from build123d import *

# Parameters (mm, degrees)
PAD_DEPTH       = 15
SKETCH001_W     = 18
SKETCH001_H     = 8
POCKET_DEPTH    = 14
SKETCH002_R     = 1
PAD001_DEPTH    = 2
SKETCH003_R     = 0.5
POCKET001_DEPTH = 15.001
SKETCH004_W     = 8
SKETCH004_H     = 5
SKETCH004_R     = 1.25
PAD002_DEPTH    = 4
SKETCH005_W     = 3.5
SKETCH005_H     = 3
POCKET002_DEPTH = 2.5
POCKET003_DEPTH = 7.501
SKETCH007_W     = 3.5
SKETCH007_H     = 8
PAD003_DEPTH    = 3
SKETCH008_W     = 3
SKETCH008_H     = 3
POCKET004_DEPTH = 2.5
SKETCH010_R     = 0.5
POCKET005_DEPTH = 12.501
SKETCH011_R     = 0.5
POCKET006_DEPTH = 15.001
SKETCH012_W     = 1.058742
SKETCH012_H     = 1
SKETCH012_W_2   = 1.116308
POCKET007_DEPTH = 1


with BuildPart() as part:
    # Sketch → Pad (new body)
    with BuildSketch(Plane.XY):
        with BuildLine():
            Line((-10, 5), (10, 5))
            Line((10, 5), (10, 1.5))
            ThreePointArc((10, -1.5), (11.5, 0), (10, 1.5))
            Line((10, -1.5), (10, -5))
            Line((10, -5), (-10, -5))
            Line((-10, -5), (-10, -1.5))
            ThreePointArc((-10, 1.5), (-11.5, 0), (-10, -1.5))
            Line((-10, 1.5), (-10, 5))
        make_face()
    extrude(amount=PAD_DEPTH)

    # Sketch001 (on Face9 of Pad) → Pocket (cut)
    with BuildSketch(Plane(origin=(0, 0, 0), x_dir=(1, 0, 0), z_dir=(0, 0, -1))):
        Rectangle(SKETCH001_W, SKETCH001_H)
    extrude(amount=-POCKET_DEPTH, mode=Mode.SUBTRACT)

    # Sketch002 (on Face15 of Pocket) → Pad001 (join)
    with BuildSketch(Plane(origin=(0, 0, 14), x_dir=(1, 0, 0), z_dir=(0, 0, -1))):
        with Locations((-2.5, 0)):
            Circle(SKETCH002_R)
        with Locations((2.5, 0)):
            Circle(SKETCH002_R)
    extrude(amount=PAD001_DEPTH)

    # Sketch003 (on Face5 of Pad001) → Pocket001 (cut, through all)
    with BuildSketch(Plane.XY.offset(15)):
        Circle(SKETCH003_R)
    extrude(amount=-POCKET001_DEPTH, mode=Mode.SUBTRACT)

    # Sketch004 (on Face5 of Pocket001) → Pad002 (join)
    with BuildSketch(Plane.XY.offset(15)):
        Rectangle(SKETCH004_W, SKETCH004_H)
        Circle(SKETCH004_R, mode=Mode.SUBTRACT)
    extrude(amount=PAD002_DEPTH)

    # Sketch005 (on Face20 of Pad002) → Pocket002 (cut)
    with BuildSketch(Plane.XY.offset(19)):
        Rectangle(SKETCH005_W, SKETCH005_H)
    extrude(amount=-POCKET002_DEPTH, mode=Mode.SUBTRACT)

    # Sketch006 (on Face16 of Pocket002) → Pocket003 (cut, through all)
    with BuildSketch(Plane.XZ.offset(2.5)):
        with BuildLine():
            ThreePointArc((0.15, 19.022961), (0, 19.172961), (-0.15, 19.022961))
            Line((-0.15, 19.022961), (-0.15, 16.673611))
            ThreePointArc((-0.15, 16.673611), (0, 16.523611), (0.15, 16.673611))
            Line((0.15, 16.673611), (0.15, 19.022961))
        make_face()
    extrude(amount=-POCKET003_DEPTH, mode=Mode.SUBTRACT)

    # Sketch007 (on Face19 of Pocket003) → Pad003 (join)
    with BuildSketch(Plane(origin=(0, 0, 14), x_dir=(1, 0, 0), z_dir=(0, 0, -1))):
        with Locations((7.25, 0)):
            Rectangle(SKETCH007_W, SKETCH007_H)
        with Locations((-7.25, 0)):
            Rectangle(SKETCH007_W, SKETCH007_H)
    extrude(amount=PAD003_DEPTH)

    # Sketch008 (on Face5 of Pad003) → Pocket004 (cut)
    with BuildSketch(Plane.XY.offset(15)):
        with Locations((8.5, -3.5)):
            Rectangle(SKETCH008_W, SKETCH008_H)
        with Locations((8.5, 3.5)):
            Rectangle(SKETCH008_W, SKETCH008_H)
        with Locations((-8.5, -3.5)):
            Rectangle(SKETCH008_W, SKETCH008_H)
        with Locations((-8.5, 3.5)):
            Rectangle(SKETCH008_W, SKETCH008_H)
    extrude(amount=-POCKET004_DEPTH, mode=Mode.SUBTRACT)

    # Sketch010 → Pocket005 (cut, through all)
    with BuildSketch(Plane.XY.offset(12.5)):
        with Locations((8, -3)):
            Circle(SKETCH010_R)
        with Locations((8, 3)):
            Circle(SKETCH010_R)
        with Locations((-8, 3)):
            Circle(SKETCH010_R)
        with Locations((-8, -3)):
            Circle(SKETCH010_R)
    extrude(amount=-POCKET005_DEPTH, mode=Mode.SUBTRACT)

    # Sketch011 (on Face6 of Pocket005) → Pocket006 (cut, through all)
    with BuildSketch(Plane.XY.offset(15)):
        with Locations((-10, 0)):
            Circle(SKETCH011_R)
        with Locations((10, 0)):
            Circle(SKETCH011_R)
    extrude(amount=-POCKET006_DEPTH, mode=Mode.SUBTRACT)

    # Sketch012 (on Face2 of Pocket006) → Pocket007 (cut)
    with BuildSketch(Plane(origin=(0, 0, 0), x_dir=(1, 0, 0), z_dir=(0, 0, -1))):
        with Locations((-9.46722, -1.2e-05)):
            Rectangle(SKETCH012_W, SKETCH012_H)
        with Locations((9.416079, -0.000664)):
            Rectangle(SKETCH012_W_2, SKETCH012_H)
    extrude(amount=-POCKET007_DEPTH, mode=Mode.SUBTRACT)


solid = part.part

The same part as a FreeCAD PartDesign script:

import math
import FreeCAD as App
import Part
import Sketcher
from FreeCAD import Vector

doc = App.newDocument("Part")
body = doc.addObject("PartDesign::Body", "Body")

# Sketch on XY plane
sketch1 = doc.addObject("Sketcher::SketchObject", "Sketch")
body.addObject(sketch1)
sketch1.AttachmentSupport = (doc.XY_Plane, [""])
sketch1.MapMode = "FlatFace"
sketch1.addGeometry([
    Part.LineSegment(Vector(10, 5, 0), Vector(-10, 5, 0)),  # 0
    Part.LineSegment(Vector(-10, 5, 0), Vector(-10, 1.5, 0)),  # 1
    Part.ArcOfCircle(Part.Circle(Vector(-10, 0, 0), Vector(0, 0, 1), 1.5), math.radians(90), math.radians(270)),  # 2
    Part.LineSegment(Vector(-10, -1.5, 0), Vector(-10, -5, 0)),  # 3
    Part.LineSegment(Vector(-10, -5, 0), Vector(10, -5, 0)),  # 4
    Part.LineSegment(Vector(10, -5, 0), Vector(10, -1.5, 0)),  # 5
    Part.ArcOfCircle(Part.Circle(Vector(10, 0, 0), Vector(0, 0, 1), 1.5), math.radians(-90), math.radians(90)),  # 6
    Part.LineSegment(Vector(10, 1.5, 0), Vector(10, 5, 0)),  # 7
], False)
sketch1.addConstraint([
    Sketcher.Constraint("Coincident", 0, 2, 1, 1),
    Sketcher.Constraint("Coincident", 1, 2, 2, 1),
    Sketcher.Constraint("Coincident", 2, 2, 3, 1),
    Sketcher.Constraint("Coincident", 3, 2, 4, 1),
    Sketcher.Constraint("Coincident", 4, 2, 5, 1),
    Sketcher.Constraint("Coincident", 5, 2, 6, 1),
    Sketcher.Constraint("Coincident", 6, 2, 7, 1),
    Sketcher.Constraint("Coincident", 7, 2, 0, 1),
    Sketcher.Constraint("Horizontal", 0),
    Sketcher.Constraint("Vertical", 1),
    Sketcher.Constraint("Vertical", 3),
    Sketcher.Constraint("Horizontal", 4),
    Sketcher.Constraint("Vertical", 5),
    Sketcher.Constraint("Vertical", 7),
    Sketcher.Constraint("Equal", 2, 6),
    Sketcher.Constraint("Symmetric", 2, 3, 6, 3, -1, 1),
    Sketcher.Constraint("Symmetric", 0, 2, 4, 2, -1, 1),
    Sketcher.Constraint("Symmetric", 2, 2, 5, 2, -2),
    Sketcher.Constraint("Vertical", 2, 3, 0, 2),
    Sketcher.Constraint("Vertical", 5, 2, 6, 2),
    Sketcher.Constraint("Radius", 2, 1.5),
    Sketcher.Constraint("DistanceX", 0, 2, 0, 1, 20.0),
    Sketcher.Constraint("DistanceY", 1, 2, 1, 1, 3.5),
])
pad1 = doc.addObject("PartDesign::Pad", "Pad")
body.addObject(pad1)
pad1.Profile = sketch1
pad1.Length = 15

# Sketch on XY plane
sketch2 = doc.addObject("Sketcher::SketchObject", "Sketch001")
body.addObject(sketch2)
sketch2.AttachmentSupport = (doc.XY_Plane, [""])
sketch2.MapMode = "FlatFace"
sketch2.addGeometry([
    Part.LineSegment(Vector(-9, -4, 0), Vector(-9, 4, 0)),
    Part.LineSegment(Vector(-9, 4, 0), Vector(9, 4, 0)),
    Part.LineSegment(Vector(9, 4, 0), Vector(9, -4, 0)),
    Part.LineSegment(Vector(9, -4, 0), Vector(-9, -4, 0)),
], False)
sketch2.addConstraint([
    Sketcher.Constraint("Coincident", 0, 2, 1, 1),
    Sketcher.Constraint("Coincident", 1, 2, 2, 1),
    Sketcher.Constraint("Coincident", 2, 2, 3, 1),
    Sketcher.Constraint("Coincident", 3, 2, 0, 1),
    Sketcher.Constraint("Vertical", 0),
    Sketcher.Constraint("Horizontal", 1),
    Sketcher.Constraint("Vertical", 2),
    Sketcher.Constraint("Horizontal", 3),
    Sketcher.Constraint("Symmetric", 0, 2, 2, 2, -1, 1),
    Sketcher.Constraint("DistanceX", 1, 1, 1, 2, 18.0),
    Sketcher.Constraint("DistanceY", 0, 1, 0, 2, 8.0),
])
pocket1 = doc.addObject("PartDesign::Pocket", "Pocket")
body.addObject(pocket1)
pocket1.Profile = sketch2
pocket1.Length = 14
pocket1.Reversed = True

# Sketch on XY plane
sketch3 = doc.addObject("Sketcher::SketchObject", "Sketch002")
body.addObject(sketch3)
sketch3.AttachmentSupport = (doc.XY_Plane, [""])
sketch3.MapMode = "FlatFace"
sketch3.AttachmentOffset = App.Placement(Vector(0, 0, 14), App.Rotation())
sketch3.addGeometry([
    Part.Circle(Vector(-2.5, 0, 0), Vector(0, 0, 1), 1),
    Part.Circle(Vector(2.5, 0, 0), Vector(0, 0, 1), 1),
], False)
sketch3.addConstraint([
    Sketcher.Constraint("Equal", 0, 1),
    Sketcher.Constraint("Symmetric", 0, 3, 1, 3, -1, 1),
    Sketcher.Constraint("PointOnObject", 0, 3, -1),
    Sketcher.Constraint("Diameter", 0, 2.0),
    Sketcher.Constraint("DistanceX", 0, 3, 1, 3, 5.0),
])
pad2 = doc.addObject("PartDesign::Pad", "Pad001")
body.addObject(pad2)
pad2.Profile = sketch3
pad2.Length = 2
pad2.Reversed = True

# Sketch on XY plane
sketch4 = doc.addObject("Sketcher::SketchObject", "Sketch003")
body.addObject(sketch4)
sketch4.AttachmentSupport = (doc.XY_Plane, [""])
sketch4.MapMode = "FlatFace"
sketch4.AttachmentOffset = App.Placement(Vector(0, 0, 15), App.Rotation())
sketch4.addGeometry(Part.Circle(Vector(0, 0, 0), Vector(0, 0, 1), 0.5), False)
sketch4.addConstraint([
    Sketcher.Constraint("Coincident", 0, 3, -1, 1),
    Sketcher.Constraint("Diameter", 0, 1.0),
])
pocket2 = doc.addObject("PartDesign::Pocket", "Pocket001")
body.addObject(pocket2)
pocket2.Profile = sketch4
pocket2.Type = "ThroughAll"

# Sketch on XY plane
sketch5 = doc.addObject("Sketcher::SketchObject", "Sketch004")
body.addObject(sketch5)
sketch5.AttachmentSupport = (doc.XY_Plane, [""])
sketch5.MapMode = "FlatFace"
sketch5.AttachmentOffset = App.Placement(Vector(0, 0, 15), App.Rotation())
sketch5.addGeometry([
    Part.LineSegment(Vector(-4, 2.5, 0), Vector(-4, -2.5, 0)),  # 0
    Part.LineSegment(Vector(-4, -2.5, 0), Vector(4, -2.5, 0)),  # 1
    Part.LineSegment(Vector(4, -2.5, 0), Vector(4, 2.5, 0)),  # 2
    Part.LineSegment(Vector(4, 2.5, 0), Vector(-4, 2.5, 0)),  # 3
    Part.Circle(Vector(0, 0, 0), Vector(0, 0, 1), 1.2),  # 4
], False)
sketch5.addConstraint([
    Sketcher.Constraint("Coincident", 0, 2, 1, 1),
    Sketcher.Constraint("Coincident", 1, 2, 2, 1),
    Sketcher.Constraint("Coincident", 2, 2, 3, 1),
    Sketcher.Constraint("Coincident", 3, 2, 0, 1),
    Sketcher.Constraint("Vertical", 0),
    Sketcher.Constraint("Horizontal", 1),
    Sketcher.Constraint("Vertical", 2),
    Sketcher.Constraint("Horizontal", 3),
    Sketcher.Constraint("Coincident", 4, 3, -1, 1),
    Sketcher.Constraint("Symmetric", 0, 2, 2, 2, -1, 1),
    Sketcher.Constraint("Diameter", 4, 2.5),
    Sketcher.Constraint("DistanceX", 1, 1, 1, 2, 8.0),
    Sketcher.Constraint("DistanceY", 0, 2, 0, 1, 5.0),
])
pad3 = doc.addObject("PartDesign::Pad", "Pad002")
body.addObject(pad3)
pad3.Profile = sketch5
pad3.Length = 4

# Sketch on XY plane
sketch6 = doc.addObject("Sketcher::SketchObject", "Sketch005")
body.addObject(sketch6)
sketch6.AttachmentSupport = (doc.XY_Plane, [""])
sketch6.MapMode = "FlatFace"
sketch6.AttachmentOffset = App.Placement(Vector(0, 0, 19), App.Rotation())
sketch6.addGeometry([
    Part.LineSegment(Vector(-1.8, 1.5, 0), Vector(-1.8, -1.5, 0)),
    Part.LineSegment(Vector(-1.8, -1.5, 0), Vector(1.8, -1.5, 0)),
    Part.LineSegment(Vector(1.8, -1.5, 0), Vector(1.8, 1.5, 0)),
    Part.LineSegment(Vector(1.8, 1.5, 0), Vector(-1.8, 1.5, 0)),
], False)
sketch6.addConstraint([
    Sketcher.Constraint("Coincident", 0, 2, 1, 1),
    Sketcher.Constraint("Coincident", 1, 2, 2, 1),
    Sketcher.Constraint("Coincident", 2, 2, 3, 1),
    Sketcher.Constraint("Coincident", 3, 2, 0, 1),
    Sketcher.Constraint("Vertical", 0),
    Sketcher.Constraint("Horizontal", 1),
    Sketcher.Constraint("Vertical", 2),
    Sketcher.Constraint("Horizontal", 3),
    Sketcher.Constraint("Symmetric", 0, 2, 2, 2, -1, 1),
    Sketcher.Constraint("DistanceY", 0, 2, 0, 1, 3.0),
    Sketcher.Constraint("DistanceX", 1, 1, 1, 2, 3.5),
])
pocket3 = doc.addObject("PartDesign::Pocket", "Pocket002")
body.addObject(pocket3)
pocket3.Profile = sketch6
pocket3.Length = 2.5

# Sketch on XZ plane
sketch7 = doc.addObject("Sketcher::SketchObject", "Sketch006")
body.addObject(sketch7)
sketch7.AttachmentSupport = (doc.XZ_Plane, [""])
sketch7.MapMode = "FlatFace"
sketch7.AttachmentOffset = App.Placement(Vector(0, 0, 2.5), App.Rotation())
sketch7.addGeometry([
    Part.ArcOfCircle(Part.Circle(Vector(0, 19.02, 0), Vector(0, 0, 1), 0.15), math.radians(0), math.radians(180)),
    Part.LineSegment(Vector(-0.15, 19.02, 0), Vector(-0.15, 16.67, 0)),
    Part.ArcOfCircle(Part.Circle(Vector(0, 16.67, 0), Vector(0, 0, 1), 0.15), math.radians(180), math.radians(360)),
    Part.LineSegment(Vector(0.15, 16.67, 0), Vector(0.15, 19.02, 0)),
], False)
sketch7.addConstraint([
    Sketcher.Constraint("Tangent", 0, 2, 1, 1),
    Sketcher.Constraint("Tangent", 1, 2, 2, 1),
    Sketcher.Constraint("Tangent", 2, 2, 3, 1),
    Sketcher.Constraint("Tangent", 3, 2, 0, 1),
    Sketcher.Constraint("Vertical", 1),
    Sketcher.Constraint("Vertical", 3),
    Sketcher.Constraint("PointOnObject", 0, 3, -2),
    Sketcher.Constraint("Radius", 0, 0.15),
    Sketcher.Constraint("DistanceY", 1, 2, 1, 1, 2.34935),
    Sketcher.Constraint("DistanceY", -1, 1, 0, 3, 19.022961),
])
pocket4 = doc.addObject("PartDesign::Pocket", "Pocket003")
body.addObject(pocket4)
pocket4.Profile = sketch7
pocket4.Type = "ThroughAll"

# Sketch on XY plane
sketch8 = doc.addObject("Sketcher::SketchObject", "Sketch007")
body.addObject(sketch8)
sketch8.AttachmentSupport = (doc.XY_Plane, [""])
sketch8.MapMode = "FlatFace"
sketch8.AttachmentOffset = App.Placement(Vector(0, 0, 14), App.Rotation())
sketch8.addGeometry([
    Part.LineSegment(Vector(5.5, -4, 0), Vector(5.5, 4, 0)),  # 0
    Part.LineSegment(Vector(5.5, 4, 0), Vector(9, 4, 0)),  # 1
    Part.LineSegment(Vector(9, 4, 0), Vector(9, -4, 0)),  # 2
    Part.LineSegment(Vector(9, -4, 0), Vector(5.5, -4, 0)),  # 3
    Part.LineSegment(Vector(-9, -4, 0), Vector(-9, 4, 0)),  # 4
    Part.LineSegment(Vector(-9, 4, 0), Vector(-5.5, 4, 0)),  # 5
    Part.LineSegment(Vector(-5.5, 4, 0), Vector(-5.5, -4, 0)),  # 6
    Part.LineSegment(Vector(-5.5, -4, 0), Vector(-9, -4, 0)),  # 7
], False)
sketch8.addConstraint([
    Sketcher.Constraint("Coincident", 0, 2, 1, 1),
    Sketcher.Constraint("Coincident", 1, 2, 2, 1),
    Sketcher.Constraint("Coincident", 2, 2, 3, 1),
    Sketcher.Constraint("Coincident", 3, 2, 0, 1),
    Sketcher.Constraint("Coincident", 4, 2, 5, 1),
    Sketcher.Constraint("Coincident", 5, 2, 6, 1),
    Sketcher.Constraint("Coincident", 6, 2, 7, 1),
    Sketcher.Constraint("Coincident", 7, 2, 4, 1),
    Sketcher.Constraint("Vertical", 0),
    Sketcher.Constraint("Horizontal", 1),
    Sketcher.Constraint("Vertical", 2),
    Sketcher.Constraint("Horizontal", 3),
    Sketcher.Constraint("Vertical", 4),
    Sketcher.Constraint("Horizontal", 5),
    Sketcher.Constraint("Vertical", 6),
    Sketcher.Constraint("Horizontal", 7),
    Sketcher.Constraint("Symmetric", 2, 2, 4, 2, -1, 1),
    Sketcher.Constraint("Symmetric", 0, 2, 6, 2, -1, 1),
    Sketcher.Constraint("Horizontal", 1, 2, 4, 2),
    Sketcher.Constraint("DistanceY", 0, 1, 0, 2, 8.0),
    Sketcher.Constraint("DistanceX", 1, 1, 1, 2, 3.5),
    Sketcher.Constraint("DistanceX", -1, 1, 1, 2, 9.0),
])
pad4 = doc.addObject("PartDesign::Pad", "Pad003")
body.addObject(pad4)
pad4.Profile = sketch8
pad4.Length = 3
pad4.Reversed = True

# Sketch on XY plane
sketch9 = doc.addObject("Sketcher::SketchObject", "Sketch008")
body.addObject(sketch9)
sketch9.AttachmentSupport = (doc.XY_Plane, [""])
sketch9.MapMode = "FlatFace"
sketch9.AttachmentOffset = App.Placement(Vector(0, 0, 15), App.Rotation())
sketch9.addGeometry([
    Part.LineSegment(Vector(7, -2, 0), Vector(7, -5, 0)),  # 0
    Part.LineSegment(Vector(7, -5, 0), Vector(10, -5, 0)),  # 1
    Part.LineSegment(Vector(10, -5, 0), Vector(10, -2, 0)),  # 2
    Part.LineSegment(Vector(10, -2, 0), Vector(7, -2, 0)),  # 3
    Part.LineSegment(Vector(7, 5, 0), Vector(7, 2, 0)),  # 4
    Part.LineSegment(Vector(7, 2, 0), Vector(10, 2, 0)),  # 5
    Part.LineSegment(Vector(10, 2, 0), Vector(10, 5, 0)),  # 6
    Part.LineSegment(Vector(10, 5, 0), Vector(7, 5, 0)),  # 7
    Part.LineSegment(Vector(-10, -2, 0), Vector(-10, -5, 0)),  # 8
    Part.LineSegment(Vector(-10, -5, 0), Vector(-7, -5, 0)),  # 9
    Part.LineSegment(Vector(-7, -5, 0), Vector(-7, -2, 0)),  # 10
    Part.LineSegment(Vector(-7, -2, 0), Vector(-10, -2, 0)),  # 11
    Part.LineSegment(Vector(-10, 5, 0), Vector(-10, 2, 0)),  # 12
    Part.LineSegment(Vector(-10, 2, 0), Vector(-7, 2, 0)),  # 13
    Part.LineSegment(Vector(-7, 2, 0), Vector(-7, 5, 0)),  # 14
    Part.LineSegment(Vector(-7, 5, 0), Vector(-10, 5, 0)),  # 15
], False)
sketch9.addConstraint([
    Sketcher.Constraint("Coincident", 0, 2, 1, 1),
    Sketcher.Constraint("Coincident", 1, 2, 2, 1),
    Sketcher.Constraint("Coincident", 2, 2, 3, 1),
    Sketcher.Constraint("Coincident", 3, 2, 0, 1),
    Sketcher.Constraint("Coincident", 4, 2, 5, 1),
    Sketcher.Constraint("Coincident", 5, 2, 6, 1),
    Sketcher.Constraint("Coincident", 6, 2, 7, 1),
    Sketcher.Constraint("Coincident", 7, 2, 4, 1),
    Sketcher.Constraint("Coincident", 8, 2, 9, 1),
    Sketcher.Constraint("Coincident", 9, 2, 10, 1),
    Sketcher.Constraint("Coincident", 10, 2, 11, 1),
    Sketcher.Constraint("Coincident", 11, 2, 8, 1),
    Sketcher.Constraint("Coincident", 12, 2, 13, 1),
    Sketcher.Constraint("Coincident", 13, 2, 14, 1),
    Sketcher.Constraint("Coincident", 14, 2, 15, 1),
    Sketcher.Constraint("Coincident", 15, 2, 12, 1),
    Sketcher.Constraint("Vertical", 0),
    Sketcher.Constraint("Horizontal", 1),
    Sketcher.Constraint("Vertical", 2),
    Sketcher.Constraint("Horizontal", 3),
    Sketcher.Constraint("Vertical", 4),
    Sketcher.Constraint("Horizontal", 5),
    Sketcher.Constraint("Vertical", 6),
    Sketcher.Constraint("Horizontal", 7),
    Sketcher.Constraint("Vertical", 8),
    Sketcher.Constraint("Horizontal", 9),
    Sketcher.Constraint("Vertical", 10),
    Sketcher.Constraint("Horizontal", 11),
    Sketcher.Constraint("Vertical", 12),
    Sketcher.Constraint("Horizontal", 13),
    Sketcher.Constraint("Vertical", 14),
    Sketcher.Constraint("Horizontal", 15),
    Sketcher.Constraint("Symmetric", 6, 2, 8, 2, -1, 1),
    Sketcher.Constraint("Symmetric", 4, 2, 10, 2, -1, 1),
    Sketcher.Constraint("Symmetric", 2, 2, 12, 2, -1, 1),
    Sketcher.Constraint("Symmetric", 0, 2, 14, 2, -1, 1),
    Sketcher.Constraint("Symmetric", 1, 2, 8, 2, -2),
    Sketcher.Constraint("Symmetric", 3, 2, 10, 2, -2),
    Sketcher.Constraint("Equal", 15, 0),
    Sketcher.Constraint("DistanceX", 1, 1, 1, 2, 3.0),
    Sketcher.Constraint("DistanceX", -1, 1, 0, 2, 7.0),
    Sketcher.Constraint("DistanceY", 0, 2, -1, 1, 5.0),
])
pocket5 = doc.addObject("PartDesign::Pocket", "Pocket004")
body.addObject(pocket5)
pocket5.Profile = sketch9
pocket5.Length = 2.5

# Sketch on XY plane
sketch10 = doc.addObject("Sketcher::SketchObject", "Sketch009")
body.addObject(sketch10)
sketch10.AttachmentSupport = (doc.XY_Plane, [""])
sketch10.MapMode = "FlatFace"
sketch10.AttachmentOffset = App.Placement(Vector(0, 0, 12.5), App.Rotation())
sketch10.addGeometry([
    Part.Circle(Vector(8, -3, 0), Vector(0, 0, 1), 0.5),
    Part.Circle(Vector(8, 3, 0), Vector(0, 0, 1), 0.5),
    Part.Circle(Vector(-8, 3, 0), Vector(0, 0, 1), 0.5),
    Part.Circle(Vector(-8, -3, 0), Vector(0, 0, 1), 0.5),
], False)
sketch10.addConstraint([
    Sketcher.Constraint("Equal", 0, 1),
    Sketcher.Constraint("Equal", 1, 2),
    Sketcher.Constraint("Equal", 2, 3),
    Sketcher.Constraint("Symmetric", 0, 3, 2, 3, -1, 1),
    Sketcher.Constraint("Symmetric", 1, 3, 3, 3, -1, 1),
    Sketcher.Constraint("Symmetric", 1, 3, 2, 3, -2),
    Sketcher.Constraint("Diameter", 0, 1.0),
    Sketcher.Constraint("DistanceX", -1, 1, 0, 3, 8.0),
    Sketcher.Constraint("DistanceY", 0, 3, -1, 1, 3.0),
])
pocket6 = doc.addObject("PartDesign::Pocket", "Pocket005")
body.addObject(pocket6)
pocket6.Profile = sketch10
pocket6.Type = "ThroughAll"

# Sketch on XY plane
sketch11 = doc.addObject("Sketcher::SketchObject", "Sketch010")
body.addObject(sketch11)
sketch11.AttachmentSupport = (doc.XY_Plane, [""])
sketch11.MapMode = "FlatFace"
sketch11.AttachmentOffset = App.Placement(Vector(0, 0, 15), App.Rotation())
sketch11.addGeometry([
    Part.Circle(Vector(-10, 0, 0), Vector(0, 0, 1), 0.5),
    Part.Circle(Vector(10, 0, 0), Vector(0, 0, 1), 0.5),
], False)
sketch11.addConstraint([
    Sketcher.Constraint("Equal", 0, 1),
    Sketcher.Constraint("Symmetric", 0, 3, 1, 3, -1, 1),
    Sketcher.Constraint("PointOnObject", 0, 3, -1),
    Sketcher.Constraint("Diameter", 0, 1.0),
    Sketcher.Constraint("DistanceX", 0, 3, -1, 1, 10.0),
])
pocket7 = doc.addObject("PartDesign::Pocket", "Pocket006")
body.addObject(pocket7)
pocket7.Profile = sketch11
pocket7.Type = "ThroughAll"

# Sketch on XY plane
sketch12 = doc.addObject("Sketcher::SketchObject", "Sketch011")
body.addObject(sketch12)
sketch12.AttachmentSupport = (doc.XY_Plane, [""])
sketch12.MapMode = "FlatFace"
sketch12.addGeometry([
    Part.LineSegment(Vector(-10, -0.5, 0), Vector(-10, 0.5, 0)),  # 0
    Part.LineSegment(Vector(-10, 0.5, 0), Vector(-8.9, 0.5, 0)),  # 1
    Part.LineSegment(Vector(-8.9, 0.5, 0), Vector(-8.9, -0.5, 0)),  # 2
    Part.LineSegment(Vector(-8.9, -0.5, 0), Vector(-10, -0.5, 0)),  # 3
    Part.LineSegment(Vector(8.9, -0.5, 0), Vector(8.9, 0.5, 0)),  # 4
    Part.LineSegment(Vector(8.9, 0.5, 0), Vector(10, 0.5, 0)),  # 5
    Part.LineSegment(Vector(10, 0.5, 0), Vector(10, -0.5, 0)),  # 6
    Part.LineSegment(Vector(10, -0.5, 0), Vector(8.9, -0.5, 0)),  # 7
], False)
sketch12.addConstraint([
    Sketcher.Constraint("Coincident", 0, 2, 1, 1),
    Sketcher.Constraint("Coincident", 1, 2, 2, 1),
    Sketcher.Constraint("Coincident", 2, 2, 3, 1),
    Sketcher.Constraint("Coincident", 3, 2, 0, 1),
    Sketcher.Constraint("Coincident", 4, 2, 5, 1),
    Sketcher.Constraint("Coincident", 5, 2, 6, 1),
    Sketcher.Constraint("Coincident", 6, 2, 7, 1),
    Sketcher.Constraint("Coincident", 7, 2, 4, 1),
    Sketcher.Constraint("Vertical", 0),
    Sketcher.Constraint("Horizontal", 1),
    Sketcher.Constraint("Vertical", 2),
    Sketcher.Constraint("Horizontal", 3),
    Sketcher.Constraint("Vertical", 4),
    Sketcher.Constraint("Horizontal", 5),
    Sketcher.Constraint("Vertical", 6),
    Sketcher.Constraint("Horizontal", 7),
    Sketcher.Constraint("Equal", 2, 4),
    Sketcher.Constraint("DistanceY", 0, 1, 0, 2, 1.0),
    Sketcher.Constraint("DistanceX", 5, 1, 5, 2, 1.116308),
    Sketcher.Constraint("DistanceX", 1, 1, 1, 2, 1.058742),
    Sketcher.Constraint("DistanceX", 0, 2, -1, 1, 9.996591),
    Sketcher.Constraint("DistanceY", 1, 2, 4, 2, 0.000652),
    Sketcher.Constraint("DistanceX", 1, 2, 5, 2, 18.912082),
    Sketcher.Constraint("DistanceY", -1, 1, 0, 2, 0.500012),
])
pocket8 = doc.addObject("PartDesign::Pocket", "Pocket007")
body.addObject(pocket8)
pocket8.Profile = sketch12
pocket8.Length = 1
pocket8.Reversed = True

doc.recompute()
